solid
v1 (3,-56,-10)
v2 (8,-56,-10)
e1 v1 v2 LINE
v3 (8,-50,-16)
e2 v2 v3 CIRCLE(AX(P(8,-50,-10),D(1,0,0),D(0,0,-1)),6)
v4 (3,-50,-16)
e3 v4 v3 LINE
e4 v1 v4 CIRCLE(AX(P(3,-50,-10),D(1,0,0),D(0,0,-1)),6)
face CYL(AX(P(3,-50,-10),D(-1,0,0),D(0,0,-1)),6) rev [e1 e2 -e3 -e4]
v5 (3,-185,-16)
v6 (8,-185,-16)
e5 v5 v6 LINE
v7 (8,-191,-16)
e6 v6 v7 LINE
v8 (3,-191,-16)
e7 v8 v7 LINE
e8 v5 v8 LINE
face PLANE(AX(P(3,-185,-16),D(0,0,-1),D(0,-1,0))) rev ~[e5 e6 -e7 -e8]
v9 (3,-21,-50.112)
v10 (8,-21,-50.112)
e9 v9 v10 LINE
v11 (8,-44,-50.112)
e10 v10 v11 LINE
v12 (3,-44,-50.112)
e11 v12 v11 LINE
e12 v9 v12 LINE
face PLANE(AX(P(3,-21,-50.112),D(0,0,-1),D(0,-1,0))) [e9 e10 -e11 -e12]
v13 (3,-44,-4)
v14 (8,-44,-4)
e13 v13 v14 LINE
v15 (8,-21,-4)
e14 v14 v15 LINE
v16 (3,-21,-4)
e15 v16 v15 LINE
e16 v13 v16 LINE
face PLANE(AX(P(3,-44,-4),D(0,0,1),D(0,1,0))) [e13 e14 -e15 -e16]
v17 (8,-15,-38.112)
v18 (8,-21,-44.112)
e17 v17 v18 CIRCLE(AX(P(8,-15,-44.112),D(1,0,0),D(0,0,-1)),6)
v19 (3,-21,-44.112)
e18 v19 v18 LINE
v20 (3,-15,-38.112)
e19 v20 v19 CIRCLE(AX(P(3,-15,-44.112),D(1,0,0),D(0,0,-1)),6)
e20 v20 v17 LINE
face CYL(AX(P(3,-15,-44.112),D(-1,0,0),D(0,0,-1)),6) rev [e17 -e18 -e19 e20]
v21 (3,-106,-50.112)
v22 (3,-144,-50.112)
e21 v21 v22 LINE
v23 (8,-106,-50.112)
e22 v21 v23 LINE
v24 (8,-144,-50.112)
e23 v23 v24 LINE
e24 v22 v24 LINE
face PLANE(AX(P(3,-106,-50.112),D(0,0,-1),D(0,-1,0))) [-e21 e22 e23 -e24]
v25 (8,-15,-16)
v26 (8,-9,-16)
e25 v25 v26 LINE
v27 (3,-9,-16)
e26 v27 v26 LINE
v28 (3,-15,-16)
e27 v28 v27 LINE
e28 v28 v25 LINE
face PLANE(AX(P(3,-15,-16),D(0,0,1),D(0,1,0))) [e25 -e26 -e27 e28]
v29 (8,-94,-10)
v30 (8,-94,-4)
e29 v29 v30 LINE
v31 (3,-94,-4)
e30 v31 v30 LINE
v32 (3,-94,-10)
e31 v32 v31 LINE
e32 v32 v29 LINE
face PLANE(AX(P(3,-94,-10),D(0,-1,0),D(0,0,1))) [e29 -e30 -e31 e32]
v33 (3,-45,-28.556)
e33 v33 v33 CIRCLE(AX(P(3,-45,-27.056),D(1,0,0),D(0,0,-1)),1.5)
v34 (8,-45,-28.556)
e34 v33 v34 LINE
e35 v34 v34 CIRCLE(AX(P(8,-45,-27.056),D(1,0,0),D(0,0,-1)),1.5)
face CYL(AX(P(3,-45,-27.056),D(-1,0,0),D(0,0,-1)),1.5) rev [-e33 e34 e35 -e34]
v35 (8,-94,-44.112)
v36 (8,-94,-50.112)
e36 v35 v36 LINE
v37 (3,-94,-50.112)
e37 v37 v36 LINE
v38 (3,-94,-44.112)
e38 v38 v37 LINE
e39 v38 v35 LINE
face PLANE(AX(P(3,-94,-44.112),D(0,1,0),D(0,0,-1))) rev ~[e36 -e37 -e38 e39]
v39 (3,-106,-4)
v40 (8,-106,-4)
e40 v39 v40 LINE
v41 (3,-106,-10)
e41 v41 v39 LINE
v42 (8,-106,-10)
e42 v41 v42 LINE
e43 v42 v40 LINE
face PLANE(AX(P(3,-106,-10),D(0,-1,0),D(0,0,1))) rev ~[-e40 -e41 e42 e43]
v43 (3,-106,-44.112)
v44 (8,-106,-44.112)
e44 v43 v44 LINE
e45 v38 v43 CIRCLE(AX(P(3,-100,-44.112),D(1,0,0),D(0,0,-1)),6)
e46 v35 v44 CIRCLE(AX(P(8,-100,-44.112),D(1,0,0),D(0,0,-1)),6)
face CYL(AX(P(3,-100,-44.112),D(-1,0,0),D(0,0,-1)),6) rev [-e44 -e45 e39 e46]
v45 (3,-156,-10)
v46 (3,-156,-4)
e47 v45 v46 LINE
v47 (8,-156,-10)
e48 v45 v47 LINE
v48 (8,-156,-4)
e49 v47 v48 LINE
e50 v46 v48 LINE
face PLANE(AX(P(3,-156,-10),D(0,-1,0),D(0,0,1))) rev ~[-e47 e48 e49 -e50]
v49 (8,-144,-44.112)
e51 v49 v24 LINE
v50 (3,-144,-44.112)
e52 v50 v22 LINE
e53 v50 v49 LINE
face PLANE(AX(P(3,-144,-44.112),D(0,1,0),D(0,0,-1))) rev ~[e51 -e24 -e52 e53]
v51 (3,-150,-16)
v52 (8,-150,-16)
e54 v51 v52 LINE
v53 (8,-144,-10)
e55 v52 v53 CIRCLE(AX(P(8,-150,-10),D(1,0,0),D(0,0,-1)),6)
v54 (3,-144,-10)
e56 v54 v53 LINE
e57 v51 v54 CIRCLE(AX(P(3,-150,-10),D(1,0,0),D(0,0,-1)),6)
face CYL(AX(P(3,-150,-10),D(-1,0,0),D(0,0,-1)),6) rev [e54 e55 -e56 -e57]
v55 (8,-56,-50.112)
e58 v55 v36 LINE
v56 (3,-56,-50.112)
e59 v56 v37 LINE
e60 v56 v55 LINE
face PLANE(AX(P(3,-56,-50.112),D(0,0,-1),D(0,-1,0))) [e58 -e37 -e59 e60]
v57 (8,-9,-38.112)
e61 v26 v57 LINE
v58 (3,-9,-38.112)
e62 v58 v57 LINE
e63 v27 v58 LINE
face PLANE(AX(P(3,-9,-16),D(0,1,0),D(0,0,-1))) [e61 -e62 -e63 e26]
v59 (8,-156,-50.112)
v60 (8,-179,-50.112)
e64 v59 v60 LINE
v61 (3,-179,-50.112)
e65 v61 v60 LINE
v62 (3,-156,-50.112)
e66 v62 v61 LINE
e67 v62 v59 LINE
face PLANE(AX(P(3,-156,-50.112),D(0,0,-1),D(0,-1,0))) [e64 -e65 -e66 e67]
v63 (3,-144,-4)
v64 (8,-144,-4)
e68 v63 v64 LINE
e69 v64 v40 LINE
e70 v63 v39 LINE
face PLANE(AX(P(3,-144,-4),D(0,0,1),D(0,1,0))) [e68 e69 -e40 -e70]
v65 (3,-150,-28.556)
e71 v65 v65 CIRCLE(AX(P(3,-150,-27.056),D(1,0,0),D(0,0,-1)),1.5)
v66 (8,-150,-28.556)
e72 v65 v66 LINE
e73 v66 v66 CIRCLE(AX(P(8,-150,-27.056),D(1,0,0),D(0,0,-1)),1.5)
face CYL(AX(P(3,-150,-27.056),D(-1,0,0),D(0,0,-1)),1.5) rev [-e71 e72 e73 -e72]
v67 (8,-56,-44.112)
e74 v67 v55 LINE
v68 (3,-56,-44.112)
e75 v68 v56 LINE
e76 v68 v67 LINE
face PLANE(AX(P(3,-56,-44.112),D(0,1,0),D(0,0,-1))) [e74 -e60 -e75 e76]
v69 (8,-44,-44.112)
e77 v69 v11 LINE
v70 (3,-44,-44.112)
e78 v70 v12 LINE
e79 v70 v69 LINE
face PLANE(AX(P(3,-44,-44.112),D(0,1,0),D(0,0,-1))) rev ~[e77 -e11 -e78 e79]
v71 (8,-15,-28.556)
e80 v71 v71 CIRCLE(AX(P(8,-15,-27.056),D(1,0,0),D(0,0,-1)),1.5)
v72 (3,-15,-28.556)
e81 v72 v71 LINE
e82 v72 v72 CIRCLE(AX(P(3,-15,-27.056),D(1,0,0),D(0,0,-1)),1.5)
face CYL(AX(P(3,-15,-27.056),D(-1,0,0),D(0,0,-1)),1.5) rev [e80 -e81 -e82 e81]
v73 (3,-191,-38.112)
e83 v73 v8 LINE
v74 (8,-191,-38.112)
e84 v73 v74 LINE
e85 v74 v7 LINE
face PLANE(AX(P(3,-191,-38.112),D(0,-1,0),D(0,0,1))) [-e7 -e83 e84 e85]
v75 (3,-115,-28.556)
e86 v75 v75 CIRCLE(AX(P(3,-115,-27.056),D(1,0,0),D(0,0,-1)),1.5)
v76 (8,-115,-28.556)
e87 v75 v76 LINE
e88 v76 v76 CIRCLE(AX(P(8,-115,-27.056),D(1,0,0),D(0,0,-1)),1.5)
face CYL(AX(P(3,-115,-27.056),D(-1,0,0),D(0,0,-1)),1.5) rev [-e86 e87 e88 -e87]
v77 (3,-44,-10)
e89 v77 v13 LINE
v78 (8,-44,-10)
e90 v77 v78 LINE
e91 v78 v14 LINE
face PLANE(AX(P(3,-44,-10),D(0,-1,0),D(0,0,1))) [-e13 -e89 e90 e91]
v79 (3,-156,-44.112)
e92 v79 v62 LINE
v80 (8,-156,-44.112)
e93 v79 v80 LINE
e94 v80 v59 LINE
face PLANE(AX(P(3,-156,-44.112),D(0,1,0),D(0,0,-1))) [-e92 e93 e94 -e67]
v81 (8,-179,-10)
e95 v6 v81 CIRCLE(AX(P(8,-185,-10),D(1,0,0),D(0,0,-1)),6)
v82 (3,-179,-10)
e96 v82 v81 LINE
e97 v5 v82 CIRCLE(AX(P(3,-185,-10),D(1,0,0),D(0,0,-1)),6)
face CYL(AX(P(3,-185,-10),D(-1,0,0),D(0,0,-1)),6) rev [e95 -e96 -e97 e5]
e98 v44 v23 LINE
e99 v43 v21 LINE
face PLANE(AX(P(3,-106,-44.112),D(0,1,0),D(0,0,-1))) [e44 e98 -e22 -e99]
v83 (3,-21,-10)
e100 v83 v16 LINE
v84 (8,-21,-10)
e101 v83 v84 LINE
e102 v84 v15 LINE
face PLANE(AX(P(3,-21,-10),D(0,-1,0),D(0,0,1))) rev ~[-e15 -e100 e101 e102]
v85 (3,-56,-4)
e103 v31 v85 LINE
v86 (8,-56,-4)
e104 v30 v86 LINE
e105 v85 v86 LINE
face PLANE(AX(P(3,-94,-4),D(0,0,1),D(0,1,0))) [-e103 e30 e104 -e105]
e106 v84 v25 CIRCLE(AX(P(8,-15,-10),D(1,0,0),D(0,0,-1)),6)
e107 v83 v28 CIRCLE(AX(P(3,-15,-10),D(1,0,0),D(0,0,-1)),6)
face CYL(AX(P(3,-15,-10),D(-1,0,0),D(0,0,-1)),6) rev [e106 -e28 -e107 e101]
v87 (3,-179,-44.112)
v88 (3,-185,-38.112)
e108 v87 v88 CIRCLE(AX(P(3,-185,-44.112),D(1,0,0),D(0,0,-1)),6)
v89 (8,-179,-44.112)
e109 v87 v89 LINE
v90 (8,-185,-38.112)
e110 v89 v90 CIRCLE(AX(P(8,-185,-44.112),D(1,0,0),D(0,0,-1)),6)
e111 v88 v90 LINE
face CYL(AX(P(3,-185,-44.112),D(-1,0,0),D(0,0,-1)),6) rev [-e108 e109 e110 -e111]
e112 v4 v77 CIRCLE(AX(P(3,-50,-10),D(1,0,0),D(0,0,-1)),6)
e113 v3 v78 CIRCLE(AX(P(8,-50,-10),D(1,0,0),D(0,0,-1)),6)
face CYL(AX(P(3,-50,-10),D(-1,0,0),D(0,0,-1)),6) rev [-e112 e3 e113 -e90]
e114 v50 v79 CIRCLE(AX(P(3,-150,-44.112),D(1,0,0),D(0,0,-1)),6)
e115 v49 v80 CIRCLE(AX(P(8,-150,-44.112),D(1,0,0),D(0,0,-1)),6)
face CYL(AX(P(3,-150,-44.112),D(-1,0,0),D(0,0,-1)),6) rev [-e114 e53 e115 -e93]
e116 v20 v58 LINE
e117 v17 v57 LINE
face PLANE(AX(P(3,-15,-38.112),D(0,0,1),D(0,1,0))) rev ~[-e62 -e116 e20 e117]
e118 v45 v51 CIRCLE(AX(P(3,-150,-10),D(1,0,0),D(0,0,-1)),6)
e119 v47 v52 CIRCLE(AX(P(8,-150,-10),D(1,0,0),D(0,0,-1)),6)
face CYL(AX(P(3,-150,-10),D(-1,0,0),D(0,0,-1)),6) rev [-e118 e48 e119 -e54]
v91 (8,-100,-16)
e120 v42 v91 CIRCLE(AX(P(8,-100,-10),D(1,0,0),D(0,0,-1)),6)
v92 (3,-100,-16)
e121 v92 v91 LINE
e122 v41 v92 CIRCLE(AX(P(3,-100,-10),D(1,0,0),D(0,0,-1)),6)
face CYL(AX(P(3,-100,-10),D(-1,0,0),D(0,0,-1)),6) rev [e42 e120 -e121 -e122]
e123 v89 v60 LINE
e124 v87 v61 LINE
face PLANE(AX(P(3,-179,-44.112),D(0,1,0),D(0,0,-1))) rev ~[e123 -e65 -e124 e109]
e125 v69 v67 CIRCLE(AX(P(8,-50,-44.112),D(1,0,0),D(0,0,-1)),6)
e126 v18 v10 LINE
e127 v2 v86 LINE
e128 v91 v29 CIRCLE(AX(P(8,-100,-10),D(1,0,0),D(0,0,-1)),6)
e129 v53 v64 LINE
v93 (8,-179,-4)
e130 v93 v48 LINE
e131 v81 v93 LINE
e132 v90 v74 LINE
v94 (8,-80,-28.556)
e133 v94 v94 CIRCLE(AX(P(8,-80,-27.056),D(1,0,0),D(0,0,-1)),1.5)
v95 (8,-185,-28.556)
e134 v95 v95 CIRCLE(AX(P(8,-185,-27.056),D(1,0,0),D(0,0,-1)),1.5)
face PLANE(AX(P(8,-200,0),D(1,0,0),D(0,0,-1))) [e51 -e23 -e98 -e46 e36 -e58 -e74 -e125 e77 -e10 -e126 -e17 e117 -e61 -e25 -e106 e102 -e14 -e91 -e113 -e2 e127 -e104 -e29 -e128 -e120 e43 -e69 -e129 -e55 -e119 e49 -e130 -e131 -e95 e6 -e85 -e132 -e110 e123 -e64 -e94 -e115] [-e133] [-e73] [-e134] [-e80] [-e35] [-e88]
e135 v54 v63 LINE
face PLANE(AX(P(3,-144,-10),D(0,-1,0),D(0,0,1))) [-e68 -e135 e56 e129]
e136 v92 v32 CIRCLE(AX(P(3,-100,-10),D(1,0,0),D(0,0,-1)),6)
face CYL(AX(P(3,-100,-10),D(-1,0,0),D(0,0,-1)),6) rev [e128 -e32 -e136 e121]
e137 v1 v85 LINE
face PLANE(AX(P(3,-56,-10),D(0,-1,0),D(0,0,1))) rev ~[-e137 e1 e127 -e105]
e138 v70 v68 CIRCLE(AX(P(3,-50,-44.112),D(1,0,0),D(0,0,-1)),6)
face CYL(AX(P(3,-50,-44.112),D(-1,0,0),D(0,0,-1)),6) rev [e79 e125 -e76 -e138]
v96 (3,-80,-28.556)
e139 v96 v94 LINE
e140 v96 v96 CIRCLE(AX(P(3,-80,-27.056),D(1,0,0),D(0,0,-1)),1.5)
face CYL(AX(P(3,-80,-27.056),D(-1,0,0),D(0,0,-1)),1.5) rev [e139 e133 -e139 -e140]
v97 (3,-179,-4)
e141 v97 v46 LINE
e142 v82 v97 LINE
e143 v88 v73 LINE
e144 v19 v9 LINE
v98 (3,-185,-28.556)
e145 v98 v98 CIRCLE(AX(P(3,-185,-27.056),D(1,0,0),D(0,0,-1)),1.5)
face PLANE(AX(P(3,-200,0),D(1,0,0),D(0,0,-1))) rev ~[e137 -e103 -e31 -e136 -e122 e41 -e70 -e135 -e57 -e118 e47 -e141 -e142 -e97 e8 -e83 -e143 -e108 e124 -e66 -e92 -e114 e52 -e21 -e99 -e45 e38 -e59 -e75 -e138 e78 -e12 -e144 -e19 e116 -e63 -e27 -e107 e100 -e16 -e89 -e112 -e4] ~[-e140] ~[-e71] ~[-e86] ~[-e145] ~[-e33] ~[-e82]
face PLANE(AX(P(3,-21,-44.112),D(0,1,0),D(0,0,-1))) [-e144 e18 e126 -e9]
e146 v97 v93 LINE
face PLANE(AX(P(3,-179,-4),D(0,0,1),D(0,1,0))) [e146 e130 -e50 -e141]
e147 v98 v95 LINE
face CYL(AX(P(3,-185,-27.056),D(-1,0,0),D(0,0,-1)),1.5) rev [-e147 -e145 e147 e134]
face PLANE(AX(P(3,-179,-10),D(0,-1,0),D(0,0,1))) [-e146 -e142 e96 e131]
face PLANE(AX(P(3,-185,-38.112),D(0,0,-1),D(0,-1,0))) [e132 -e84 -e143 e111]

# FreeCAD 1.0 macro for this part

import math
import FreeCAD as App
import Part
import Sketcher

V = App.Vector

doc = App.newDocument("Part")
body = doc.addObject("PartDesign::Body", "Body")

# Sketch on YZ plane
sketch1 = body.newObject("Sketcher::SketchObject", "Sketch")
sketch1.AttachmentSupport = (doc.getObject("YZ_Plane"), [""])
sketch1.MapMode = "FlatFace"
sketch1.AttachmentOffset = App.Placement(V(0, 0, 3), App.Rotation())
sketch1.addGeometry([
    Part.ArcOfCircle(Part.Circle(V(-185, -10, 0), V(0, 0, 1), 6), math.radians(-90), math.radians(0)),  # 0
    Part.LineSegment(V(-185, -16, 0), V(-191, -16, 0)),  # 1
    Part.LineSegment(V(-191, -16, 0), V(-191, -38.1, 0)),  # 2
    Part.LineSegment(V(-191, -38.1, 0), V(-185, -38.1, 0)),  # 3
    Part.ArcOfCircle(Part.Circle(V(-185, -44.1, 0), V(0, 0, 1), 6), math.radians(0), math.radians(90)),  # 4
    Part.LineSegment(V(-179, -44.1, 0), V(-179, -50.1, 0)),  # 5
    Part.LineSegment(V(-179, -50.1, 0), V(-156, -50.1, 0)),  # 6
    Part.LineSegment(V(-156, -50.1, 0), V(-156, -44.1, 0)),  # 7
    Part.ArcOfCircle(Part.Circle(V(-150, -44.1, 0), V(0, 0, 1), 6), math.radians(0), math.radians(180)),  # 8
    Part.LineSegment(V(-144, -44.1, 0), V(-144, -50.1, 0)),  # 9
    Part.LineSegment(V(-144, -50.1, 0), V(-106, -50.1, 0)),  # 10
    Part.LineSegment(V(-106, -50.1, 0), V(-106, -44.1, 0)),  # 11
    Part.ArcOfCircle(Part.Circle(V(-100, -44.1, 0), V(0, 0, 1), 6), math.radians(0), math.radians(180)),  # 12
    Part.LineSegment(V(-94, -44.1, 0), V(-94, -50.1, 0)),  # 13
    Part.LineSegment(V(-94, -50.1, 0), V(-56, -50.1, 0)),  # 14
    Part.LineSegment(V(-56, -50.1, 0), V(-56, -44.1, 0)),  # 15
    Part.ArcOfCircle(Part.Circle(V(-50, -44.1, 0), V(0, 0, 1), 6), math.radians(0), math.radians(180)),  # 16
    Part.LineSegment(V(-44, -44.1, 0), V(-44, -50.1, 0)),  # 17
    Part.LineSegment(V(-44, -50.1, 0), V(-21, -50.1, 0)),  # 18
    Part.LineSegment(V(-21, -50.1, 0), V(-21, -44.1, 0)),  # 19
    Part.ArcOfCircle(Part.Circle(V(-15, -44.1, 0), V(0, 0, 1), 6), math.radians(90), math.radians(180)),  # 20
    Part.LineSegment(V(-15, -38.1, 0), V(-9, -38.1, 0)),  # 21
    Part.LineSegment(V(-9, -38.1, 0), V(-9, -16, 0)),  # 22
    Part.LineSegment(V(-9, -16, 0), V(-15, -16, 0)),  # 23
    Part.ArcOfCircle(Part.Circle(V(-15, -10, 0), V(0, 0, 1), 6), math.radians(180), math.radians(270)),  # 24
    Part.LineSegment(V(-21, -10, 0), V(-21, -4, 0)),  # 25
    Part.LineSegment(V(-21, -4, 0), V(-44, -4, 0)),  # 26
    Part.LineSegment(V(-44, -4, 0), V(-44, -10, 0)),  # 27
    Part.ArcOfCircle(Part.Circle(V(-50, -10, 0), V(0, 0, 1), 6), math.radians(180), math.radians(360)),  # 28
    Part.LineSegment(V(-56, -10, 0), V(-56, -4, 0)),  # 29
    Part.LineSegment(V(-56, -4, 0), V(-94, -4, 0)),  # 30
    Part.LineSegment(V(-94, -4, 0), V(-94, -10, 0)),  # 31
    Part.ArcOfCircle(Part.Circle(V(-100, -10, 0), V(0, 0, 1), 6), math.radians(180), math.radians(360)),  # 32
    Part.LineSegment(V(-106, -10, 0), V(-106, -4, 0)),  # 33
    Part.LineSegment(V(-106, -4, 0), V(-144, -4, 0)),  # 34
    Part.LineSegment(V(-144, -4, 0), V(-144, -10, 0)),  # 35
    Part.ArcOfCircle(Part.Circle(V(-150, -10, 0), V(0, 0, 1), 6), math.radians(180), math.radians(360)),  # 36
    Part.LineSegment(V(-156, -10, 0), V(-156, -4, 0)),  # 37
    Part.LineSegment(V(-156, -4, 0), V(-179, -4, 0)),  # 38
    Part.LineSegment(V(-179, -4, 0), V(-179, -10, 0)),  # 39
    Part.Circle(V(-185, -27.1, 0), V(0, 0, 1), 1.5),  # 40
    Part.Circle(V(-150, -27.1, 0), V(0, 0, 1), 1.5),  # 41
    Part.Circle(V(-115, -27.1, 0), V(0, 0, 1), 1.5),  # 42
    Part.Circle(V(-80, -27.1, 0), V(0, 0, 1), 1.5),  # 43
    Part.Circle(V(-45, -27.1, 0), V(0, 0, 1), 1.5),  # 44
    Part.Circle(V(-15, -27.1, 0), V(0, 0, 1), 1.5),  # 45
], False)
sketch1.addConstraint([
    Sketcher.Constraint("Tangent", 0, 1, 1, 1),
    Sketcher.Constraint("Coincident", 1, 2, 2, 1),
    Sketcher.Constraint("Coincident", 2, 2, 3, 1),
    Sketcher.Constraint("Tangent", 3, 2, 4, 2),
    Sketcher.Constraint("Tangent", 4, 1, 5, 1),
    Sketcher.Constraint("Coincident", 5, 2, 6, 1),
    Sketcher.Constraint("Coincident", 6, 2, 7, 1),
    Sketcher.Constraint("Tangent", 7, 2, 8, 2),
    Sketcher.Constraint("Tangent", 8, 1, 9, 1),
    Sketcher.Constraint("Coincident", 9, 2, 10, 1),
    Sketcher.Constraint("Coincident", 10, 2, 11, 1),
    Sketcher.Constraint("Tangent", 11, 2, 12, 2),
    Sketcher.Constraint("Tangent", 12, 1, 13, 1),
    Sketcher.Constraint("Coincident", 13, 2, 14, 1),
    Sketcher.Constraint("Coincident", 14, 2, 15, 1),
    Sketcher.Constraint("Tangent", 15, 2, 16, 2),
    Sketcher.Constraint("Tangent", 16, 1, 17, 1),
    Sketcher.Constraint("Coincident", 17, 2, 18, 1),
    Sketcher.Constraint("Coincident", 18, 2, 19, 1),
    Sketcher.Constraint("Tangent", 19, 2, 20, 2),
    Sketcher.Constraint("Tangent", 20, 1, 21, 1),
    Sketcher.Constraint("Coincident", 21, 2, 22, 1),
    Sketcher.Constraint("Coincident", 22, 2, 23, 1),
    Sketcher.Constraint("Tangent", 23, 2, 24, 2),
    Sketcher.Constraint("Tangent", 24, 1, 25, 1),
    Sketcher.Constraint("Coincident", 25, 2, 26, 1),
    Sketcher.Constraint("Coincident", 26, 2, 27, 1),
    Sketcher.Constraint("Tangent", 27, 2, 28, 2),
    Sketcher.Constraint("Tangent", 28, 1, 29, 1),
    Sketcher.Constraint("Coincident", 29, 2, 30, 1),
    Sketcher.Constraint("Coincident", 30, 2, 31, 1),
    Sketcher.Constraint("Tangent", 31, 2, 32, 2),
    Sketcher.Constraint("Tangent", 32, 1, 33, 1),
    Sketcher.Constraint("Coincident", 33, 2, 34, 1),
    Sketcher.Constraint("Coincident", 34, 2, 35, 1),
    Sketcher.Constraint("Tangent", 35, 2, 36, 2),
    Sketcher.Constraint("Tangent", 36, 1, 37, 1),
    Sketcher.Constraint("Coincident", 37, 2, 38, 1),
    Sketcher.Constraint("Coincident", 38, 2, 39, 1),
    Sketcher.Constraint("Tangent", 39, 2, 0, 2),
    Sketcher.Constraint("Horizontal", 1),
    Sketcher.Constraint("Vertical", 2),
    Sketcher.Constraint("Horizontal", 3),
    Sketcher.Constraint("Vertical", 5),
    Sketcher.Constraint("Horizontal", 6),
    Sketcher.Constraint("Vertical", 7),
    Sketcher.Constraint("Vertical", 9),
    Sketcher.Constraint("Horizontal", 10),
    Sketcher.Constraint("Vertical", 11),
    Sketcher.Constraint("Vertical", 13),
    Sketcher.Constraint("Horizontal", 14),
    Sketcher.Constraint("Vertical", 15),
    Sketcher.Constraint("Vertical", 17),
    Sketcher.Constraint("Horizontal", 18),
    Sketcher.Constraint("Vertical", 19),
    Sketcher.Constraint("Horizontal", 21),
    Sketcher.Constraint("Vertical", 22),
    Sketcher.Constraint("Horizontal", 23),
    Sketcher.Constraint("Vertical", 25),
    Sketcher.Constraint("Horizontal", 26),
    Sketcher.Constraint("Vertical", 27),
    Sketcher.Constraint("Vertical", 29),
    Sketcher.Constraint("Horizontal", 30),
    Sketcher.Constraint("Vertical", 31),
    Sketcher.Constraint("Vertical", 33),
    Sketcher.Constraint("Horizontal", 34),
    Sketcher.Constraint("Vertical", 35),
    Sketcher.Constraint("Vertical", 37),
    Sketcher.Constraint("Horizontal", 38),
    Sketcher.Constraint("Vertical", 39),
    Sketcher.Constraint("Equal", 0, 4),
    Sketcher.Constraint("Equal", 4, 8),
    Sketcher.Constraint("Equal", 8, 12),
    Sketcher.Constraint("Equal", 12, 16),
    Sketcher.Constraint("Equal", 16, 20),
    Sketcher.Constraint("Equal", 20, 24),
    Sketcher.Constraint("Equal", 24, 28),
    Sketcher.Constraint("Equal", 28, 32),
    Sketcher.Constraint("Equal", 32, 36),
    Sketcher.Constraint("Equal", 40, 41),
    Sketcher.Constraint("Equal", 41, 42),
    Sketcher.Constraint("Equal", 42, 43),
    Sketcher.Constraint("Equal", 43, 44),
    Sketcher.Constraint("Equal", 44, 45),
    Sketcher.Constraint("Horizontal", 4, 3, 8, 3),
    Sketcher.Constraint("Horizontal", 8, 3, 12, 3),
    Sketcher.Constraint("Horizontal", 12, 3, 16, 3),
    Sketcher.Constraint("Horizontal", 16, 3, 20, 3),
    Sketcher.Constraint("Horizontal", 0, 3, 24, 3),
    Sketcher.Constraint("Horizontal", 24, 3, 28, 3),
    Sketcher.Constraint("Horizontal", 28, 3, 32, 3),
    Sketcher.Constraint("Horizontal", 32, 3, 36, 3),
    Sketcher.Constraint("Horizontal", 40, 3, 41, 3),
    Sketcher.Constraint("Horizontal", 41, 3, 42, 3),
    Sketcher.Constraint("Horizontal", 42, 3, 43, 3),
    Sketcher.Constraint("Horizontal", 43, 3, 44, 3),
    Sketcher.Constraint("Horizontal", 44, 3, 45, 3),
    Sketcher.Constraint("Horizontal", 6, 2, 9, 2),
    Sketcher.Constraint("Horizontal", 10, 2, 13, 2),
    Sketcher.Constraint("Horizontal", 14, 2, 17, 2),
    Sketcher.Constraint("Horizontal", 26, 2, 29, 2),
    Sketcher.Constraint("Horizontal", 30, 2, 33, 2),
    Sketcher.Constraint("Horizontal", 34, 2, 37, 2),
    Sketcher.Constraint("Vertical", 0, 3, 4, 3),
    Sketcher.Constraint("Vertical", 20, 3, 24, 3),
    Sketcher.Constraint("Vertical", 16, 3, 28, 3),
    Sketcher.Constraint("Vertical", 12, 3, 32, 3),
    Sketcher.Constraint("Vertical", 8, 3, 36, 3),
    Sketcher.Constraint("Vertical", 4, 3, 40, 3),
    Sketcher.Constraint("Vertical", 36, 3, 41, 3),
    Sketcher.Constraint("Vertical", 24, 3, 45, 3),
    Sketcher.Constraint("Equal", 10, 14),
    Sketcher.Constraint("Equal", 6, 18),
    Sketcher.Constraint("Equal", 3, 21),
    Sketcher.Constraint("Equal", 23, 5),
    Sketcher.Constraint("Equal", 19, 25),
    Sketcher.Constraint("Radius", 0, 6.0),
    Sketcher.Constraint("Diameter", 40, 3.0),
    Sketcher.Constraint("DistanceX", 2, 2, 4, 1, 12.0),
    Sketcher.Constraint("DistanceX", 6, 1, 6, 2, 23.0),
    Sketcher.Constraint("DistanceX", 10, 1, 10, 2, 38.0),
    Sketcher.Constraint("DistanceX", 0, 3, -1, 1, 185.0),
    Sketcher.Constraint("DistanceY", 0, 3, -1, 1, 10.0),
    Sketcher.Constraint("DistanceX", 42, 3, -1, 1, 115.0),
    Sketcher.Constraint("DistanceX", 43, 3, -1, 1, 80.0),
    Sketcher.Constraint("DistanceX", 44, 3, -1, 1, 45.0),
    Sketcher.Constraint("DistanceY", 2, 2, 2, 1, 22.112),
    Sketcher.Constraint("DistanceY", 40, 3, -1, 1, 27.056),
])
pad1 = body.newObject("PartDesign::Pad", "Pad")
pad1.Profile = sketch1
pad1.Length = 5

doc.recompute()
